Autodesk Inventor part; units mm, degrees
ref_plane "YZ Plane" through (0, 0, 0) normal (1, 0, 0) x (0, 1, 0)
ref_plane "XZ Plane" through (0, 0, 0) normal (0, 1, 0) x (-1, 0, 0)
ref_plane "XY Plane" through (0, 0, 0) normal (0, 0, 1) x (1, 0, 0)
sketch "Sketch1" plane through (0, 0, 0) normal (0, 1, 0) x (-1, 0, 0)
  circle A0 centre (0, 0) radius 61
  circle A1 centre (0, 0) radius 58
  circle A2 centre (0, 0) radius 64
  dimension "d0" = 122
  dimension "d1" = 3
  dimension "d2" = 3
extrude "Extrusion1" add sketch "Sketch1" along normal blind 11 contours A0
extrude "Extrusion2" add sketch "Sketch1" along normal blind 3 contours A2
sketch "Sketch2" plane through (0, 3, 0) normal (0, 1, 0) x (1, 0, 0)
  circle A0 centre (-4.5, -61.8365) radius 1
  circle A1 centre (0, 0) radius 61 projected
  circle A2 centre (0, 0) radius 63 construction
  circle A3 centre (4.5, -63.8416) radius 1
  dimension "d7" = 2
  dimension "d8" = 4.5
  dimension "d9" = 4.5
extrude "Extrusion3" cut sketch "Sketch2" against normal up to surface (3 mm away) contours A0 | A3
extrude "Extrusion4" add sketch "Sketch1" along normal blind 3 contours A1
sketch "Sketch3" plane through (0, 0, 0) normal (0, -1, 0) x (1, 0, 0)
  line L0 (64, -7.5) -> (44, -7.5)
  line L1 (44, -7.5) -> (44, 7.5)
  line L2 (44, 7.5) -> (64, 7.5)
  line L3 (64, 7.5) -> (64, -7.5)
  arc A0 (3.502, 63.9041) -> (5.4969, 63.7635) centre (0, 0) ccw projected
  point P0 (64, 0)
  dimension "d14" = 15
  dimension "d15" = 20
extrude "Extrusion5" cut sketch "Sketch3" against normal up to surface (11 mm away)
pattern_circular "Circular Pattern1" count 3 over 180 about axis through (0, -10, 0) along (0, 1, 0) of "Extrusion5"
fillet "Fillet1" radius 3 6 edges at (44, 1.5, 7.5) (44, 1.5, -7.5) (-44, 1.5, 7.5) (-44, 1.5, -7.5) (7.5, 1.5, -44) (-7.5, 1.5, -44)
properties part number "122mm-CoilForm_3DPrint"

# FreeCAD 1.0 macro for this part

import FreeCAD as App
import Part
import Sketcher
Q = App.Units.Quantity


def edges_at(feature, points):
    """Names of the edges that pass closest to the given points."""
    edges = feature.Shape.Edges
    near = lambda p: min(range(len(edges)), key=lambda i: edges[i].distToShape(Part.Vertex(*p))[0])
    return sorted({f"Edge{near(p) + 1}" for p in points})


def add_polygon(sketch, points):
    """Adds a closed chain of lines whose ends are joined by coincident constraints."""
    first, n = sketch.GeometryCount, len(points)
    for a, b in zip(points, points[1:] + points[:1]):
        sketch.addGeometry(Part.LineSegment(App.Vector(*a, 0), App.Vector(*b, 0)), False)
    for i in range(n):
        sketch.addConstraint(Sketcher.Constraint("Coincident", first + i, 2, first + (i + 1) % n, 1))

doc = App.newDocument("Part")
body = doc.addObject("PartDesign::Body", "Body")

# Sketch on XZ plane
sketch1 = body.newObject("Sketcher::SketchObject", "Sketch")
sketch1.AttachmentSupport = (doc.getObject("XZ_Plane"), [""])
sketch1.MapMode = "FlatFace"
sketch1.addGeometry([
    Part.Circle(App.Vector(0, 0, 0), App.Vector(0, 0, 1), 61),
    Part.Circle(App.Vector(0, 0, 0), App.Vector(0, 0, 1), 58),
], False)
sketch1.addConstraint([
    Sketcher.Constraint("Coincident", 0, 3, -1, 1),
    Sketcher.Constraint("Coincident", 1, 3, -1, 1),
    Sketcher.Constraint("Diameter", 0, Q("122 mm")),
    Sketcher.Constraint("Diameter", 1, Q("116 mm")),
])
pad1 = body.newObject("PartDesign::Pad", "Pad")
pad1.Profile = sketch1
pad1.Length = 11
pad1.Reversed = True

# Sketch on XZ plane
sketch2 = body.newObject("Sketcher::SketchObject", "Sketch001")
sketch2.AttachmentSupport = (doc.getObject("XZ_Plane"), [""])
sketch2.MapMode = "FlatFace"
sketch2.addGeometry([
    Part.Circle(App.Vector(0, 0, 0), App.Vector(0, 0, 1), 64),
    Part.Circle(App.Vector(0, 0, 0), App.Vector(0, 0, 1), 61),
], False)
sketch2.addConstraint([
    Sketcher.Constraint("Coincident", 0, 3, -1, 1),
    Sketcher.Constraint("Coincident", 1, 3, -1, 1),
    Sketcher.Constraint("Diameter", 1, Q("122 mm")),
    Sketcher.Constraint("Diameter", 0, Q("128 mm")),
])
pad2 = body.newObject("PartDesign::Pad", "Pad001")
pad2.Profile = sketch2
pad2.Length = 3
pad2.Reversed = True

# Sketch on XZ plane
sketch3 = body.newObject("Sketcher::SketchObject", "Sketch002")
sketch3.AttachmentSupport = (doc.getObject("XZ_Plane"), [""])
sketch3.MapMode = "FlatFace"
sketch3.AttachmentOffset = App.Placement(App.Vector(0, 0, -3), App.Rotation())
sketch3.addGeometry([
    Part.Circle(App.Vector(-4.5, 61.8, 0), App.Vector(0, 0, 1), 1),
    Part.Circle(App.Vector(4.5, 63.8, 0), App.Vector(0, 0, 1), 1),
], False)
sketch3.addConstraint([
    Sketcher.Constraint("Equal", 0, 1),
    Sketcher.Constraint("Diameter", 0, Q("2 mm")),
    Sketcher.Constraint("DistanceX", 0, 3, -1, 1, Q("4.5 mm")),
    Sketcher.Constraint("DistanceX", -1, 1, 1, 3, Q("4.5 mm")),
    Sketcher.Constraint("DistanceY", 0, 3, 1, 3, Q("2.005 mm")),
    Sketcher.Constraint("DistanceY", -1, 1, 0, 3, Q("61.8365 mm")),
])
pocket1 = body.newObject("PartDesign::Pocket", "Pocket")
pocket1.Profile = sketch3
pocket1.Length = 3
pocket1.Reversed = True

# Sketch on XZ plane
sketch4 = body.newObject("Sketcher::SketchObject", "Sketch003")
sketch4.AttachmentSupport = (doc.getObject("XZ_Plane"), [""])
sketch4.MapMode = "FlatFace"
sketch4.addGeometry(Part.Circle(App.Vector(0, 0, 0), App.Vector(0, 0, 1), 58), False)
sketch4.addConstraint([
    Sketcher.Constraint("Coincident", 0, 3, -1, 1),
    Sketcher.Constraint("Diameter", 0, Q("116 mm")),
])
pad3 = body.newObject("PartDesign::Pad", "Pad002")
pad3.Profile = sketch4
pad3.Length = 3
pad3.Reversed = True

# Sketch on XZ plane
sketch5 = body.newObject("Sketcher::SketchObject", "Sketch004")
sketch5.AttachmentSupport = (doc.getObject("XZ_Plane"), [""])
sketch5.MapMode = "FlatFace"
add_polygon(sketch5, [(64, -8), (64, 8), (44, 8), (44, -8)])  # lines 0-3
sketch5.addConstraint([
    Sketcher.Constraint("Vertical", 0),
    Sketcher.Constraint("Horizontal", 1),
    Sketcher.Constraint("Vertical", 2),
    Sketcher.Constraint("Horizontal", 3),
    Sketcher.Constraint("DistanceX", 1, 2, 1, 1, Q("20 mm")),
    Sketcher.Constraint("DistanceY", 0, 1, 0, 2, Q("15 mm")),
    Sketcher.Constraint("DistanceX", -1, 1, 0, 2, Q("64 mm")),
    Sketcher.Constraint("DistanceY", -1, 1, 0, 2, Q("7.5 mm")),
])
pocket2 = body.newObject("PartDesign::Pocket", "Pocket001")
pocket2.Profile = sketch5
pocket2.Length = 11
doc.recompute()

polarpattern = body.newObject("PartDesign::PolarPattern", "PolarPattern")
polarpattern.Originals = [pocket2]
polarpattern.Axis = (doc.getObject("Y_Axis"), [""])
polarpattern.Angle = 180
polarpattern.Occurrences = 3
body.Tip = polarpattern
doc.recompute()

fillet = body.newObject("PartDesign::Fillet", "Fillet")
fillet.Base = (polarpattern, edges_at(polarpattern, [
    (44, 1.5, 7.5),
    (44, 1.5, -7.5),
    (-44, 1.5, 7.5),
    (-44, 1.5, -7.5),
    (7.5, 1.5, -44),
    (-7.5, 1.5, -44),
]))
fillet.Radius = 3

doc.recompute()
